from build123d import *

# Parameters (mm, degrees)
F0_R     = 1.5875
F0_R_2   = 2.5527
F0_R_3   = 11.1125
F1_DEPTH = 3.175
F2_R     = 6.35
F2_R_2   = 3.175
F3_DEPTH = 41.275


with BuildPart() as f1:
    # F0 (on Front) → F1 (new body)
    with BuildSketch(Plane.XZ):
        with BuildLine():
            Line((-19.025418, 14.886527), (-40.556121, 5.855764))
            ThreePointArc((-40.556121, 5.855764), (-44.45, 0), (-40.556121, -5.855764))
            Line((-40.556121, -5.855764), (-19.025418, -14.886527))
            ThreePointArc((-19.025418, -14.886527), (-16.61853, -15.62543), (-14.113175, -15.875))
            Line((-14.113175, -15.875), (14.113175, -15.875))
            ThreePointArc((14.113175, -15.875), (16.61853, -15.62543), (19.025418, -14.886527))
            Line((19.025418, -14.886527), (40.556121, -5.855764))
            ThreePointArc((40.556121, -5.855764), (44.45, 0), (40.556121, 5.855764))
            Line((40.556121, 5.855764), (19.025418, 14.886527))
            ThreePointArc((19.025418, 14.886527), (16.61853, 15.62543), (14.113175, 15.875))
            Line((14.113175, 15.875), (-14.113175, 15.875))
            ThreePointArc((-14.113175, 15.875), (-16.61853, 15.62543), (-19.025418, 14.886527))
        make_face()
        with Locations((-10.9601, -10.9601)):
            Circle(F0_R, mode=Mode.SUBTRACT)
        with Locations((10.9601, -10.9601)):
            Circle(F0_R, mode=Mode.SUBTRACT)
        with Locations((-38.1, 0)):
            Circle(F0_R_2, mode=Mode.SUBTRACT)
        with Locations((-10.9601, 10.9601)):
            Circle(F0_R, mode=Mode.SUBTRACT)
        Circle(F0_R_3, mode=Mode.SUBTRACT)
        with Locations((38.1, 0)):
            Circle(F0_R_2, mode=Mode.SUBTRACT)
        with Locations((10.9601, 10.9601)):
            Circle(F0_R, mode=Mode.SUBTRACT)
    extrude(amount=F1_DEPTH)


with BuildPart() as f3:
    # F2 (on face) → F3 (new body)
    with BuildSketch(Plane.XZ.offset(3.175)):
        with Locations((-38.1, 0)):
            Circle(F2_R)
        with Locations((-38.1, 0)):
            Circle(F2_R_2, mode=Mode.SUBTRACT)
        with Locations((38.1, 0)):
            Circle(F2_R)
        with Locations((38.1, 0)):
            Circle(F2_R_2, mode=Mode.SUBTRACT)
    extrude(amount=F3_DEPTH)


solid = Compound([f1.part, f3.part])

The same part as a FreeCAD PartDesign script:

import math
import FreeCAD as App
import Part
import Sketcher
from FreeCAD import Vector
Q = App.Units.Quantity

doc = App.newDocument("Part")
body = doc.addObject("PartDesign::Body", "Body")

# Sketch on XZ plane
sketch1 = doc.addObject("Sketcher::SketchObject", "Sketch")
body.addObject(sketch1)
sketch1.AttachmentSupport = (doc.XZ_Plane, [""])
sketch1.MapMode = "FlatFace"
sketch1.addGeometry(Part.LineSegment(Vector(-19, 14.9, 0), Vector(-40.6, 5.9, 0)), False)
sketch1.addGeometry(Part.ArcOfCircle(Part.Circle(Vector(-38.1, 0, 0), Vector(0, 0, 1), 6.4), math.radians(113), math.radians(247)), False)
sketch1.addGeometry(Part.LineSegment(Vector(-40.6, -5.9, 0), Vector(-19, -14.9, 0)), False)
sketch1.addGeometry(Part.ArcOfCircle(Part.Circle(Vector(-14.1, -3.2, 0), Vector(0, 0, 1), 12.7), math.radians(-113), math.radians(-90)), False)
sketch1.addGeometry(Part.LineSegment(Vector(-14.1, -15.9, 0), Vector(14.1, -15.9, 0)), False)
sketch1.addGeometry(Part.ArcOfCircle(Part.Circle(Vector(14.1, -3.2, 0), Vector(0, 0, 1), 12.7), math.radians(-90), math.radians(-67)), False)
sketch1.addGeometry(Part.LineSegment(Vector(19, -14.9, 0), Vector(40.6, -5.9, 0)), False)
sketch1.addGeometry(Part.ArcOfCircle(Part.Circle(Vector(38.1, 0, 0), Vector(0, 0, 1), 6.4), math.radians(-67), math.radians(67)), False)
sketch1.addGeometry(Part.LineSegment(Vector(40.6, 5.9, 0), Vector(19, 14.9, 0)), False)
sketch1.addGeometry(Part.ArcOfCircle(Part.Circle(Vector(14.1, 3.2, 0), Vector(0, 0, 1), 12.7), math.radians(67), math.radians(90)), False)
sketch1.addGeometry(Part.LineSegment(Vector(14.1, 15.9, 0), Vector(-14.1, 15.9, 0)), False)
sketch1.addGeometry(Part.ArcOfCircle(Part.Circle(Vector(-14.1, 3.2, 0), Vector(0, 0, 1), 12.7), math.radians(90), math.radians(113)), False)
sketch1.addGeometry(Part.Circle(Vector(-11, -11, 0), Vector(0, 0, 1), 1.6), False)
sketch1.addGeometry(Part.Circle(Vector(11, -11, 0), Vector(0, 0, 1), 1.6), False)
sketch1.addGeometry(Part.Circle(Vector(-38.1, 0, 0), Vector(0, 0, 1), 2.6), False)
sketch1.addGeometry(Part.Circle(Vector(-11, 11, 0), Vector(0, 0, 1), 1.6), False)
sketch1.addGeometry(Part.Circle(Vector(0, 0, 0), Vector(0, 0, 1), 11.1), False)
sketch1.addGeometry(Part.Circle(Vector(38.1, 0, 0), Vector(0, 0, 1), 2.6), False)
sketch1.addGeometry(Part.Circle(Vector(11, 11, 0), Vector(0, 0, 1), 1.6), False)
sketch1.addConstraint(Sketcher.Constraint("Tangent", 0, 2, 1, 1))
sketch1.addConstraint(Sketcher.Constraint("Tangent", 1, 2, 2, 1))
sketch1.addConstraint(Sketcher.Constraint("Tangent", 2, 2, 3, 1))
sketch1.addConstraint(Sketcher.Constraint("Tangent", 3, 2, 4, 1))
sketch1.addConstraint(Sketcher.Constraint("Tangent", 4, 2, 5, 1))
sketch1.addConstraint(Sketcher.Constraint("Tangent", 5, 2, 6, 1))
sketch1.addConstraint(Sketcher.Constraint("Tangent", 6, 2, 7, 1))
sketch1.addConstraint(Sketcher.Constraint("Tangent", 7, 2, 8, 1))
sketch1.addConstraint(Sketcher.Constraint("Tangent", 8, 2, 9, 1))
sketch1.addConstraint(Sketcher.Constraint("Tangent", 9, 2, 10, 1))
sketch1.addConstraint(Sketcher.Constraint("Tangent", 10, 2, 11, 1))
sketch1.addConstraint(Sketcher.Constraint("Tangent", 11, 2, 0, 1))
sketch1.addConstraint(Sketcher.Constraint("Horizontal", 4))
sketch1.addConstraint(Sketcher.Constraint("Horizontal", 10))
sketch1.addConstraint(Sketcher.Constraint("Coincident", 16, 3, -1, 1))
sketch1.addConstraint(Sketcher.Constraint("Coincident", 14, 3, 1, 3))
sketch1.addConstraint(Sketcher.Constraint("Coincident", 17, 3, 7, 3))
sketch1.addConstraint(Sketcher.Constraint("Equal", 3, 5))
sketch1.addConstraint(Sketcher.Constraint("Equal", 1, 7))
sketch1.addConstraint(Sketcher.Constraint("Equal", 5, 9))
sketch1.addConstraint(Sketcher.Constraint("Equal", 9, 11))
sketch1.addConstraint(Sketcher.Constraint("Equal", 12, 13))
sketch1.addConstraint(Sketcher.Constraint("Equal", 13, 15))
sketch1.addConstraint(Sketcher.Constraint("Equal", 14, 17))
sketch1.addConstraint(Sketcher.Constraint("Equal", 15, 18))
sketch1.addConstraint(Sketcher.Constraint("Symmetric", 1, 3, 7, 3, -1, 1))
sketch1.addConstraint(Sketcher.Constraint("Symmetric", 3, 3, 9, 3, -1, 1))
sketch1.addConstraint(Sketcher.Constraint("Symmetric", 13, 3, 15, 3, -1, 1))
sketch1.addConstraint(Sketcher.Constraint("Symmetric", 12, 3, 18, 3, -1, 1))
sketch1.addConstraint(Sketcher.Constraint("Symmetric", 12, 3, 13, 3, -2))
sketch1.addConstraint(Sketcher.Constraint("Symmetric", 2, 2, 5, 2, -2))
sketch1.addConstraint(Sketcher.Constraint("Parallel", 0, 6))
sketch1.addConstraint(Sketcher.Constraint("Radius", 1, Q("0.25 in")))
sketch1.addConstraint(Sketcher.Constraint("Diameter", 12, Q("0.125 in")))
sketch1.addConstraint(Sketcher.Constraint("Diameter", 14, Q("0.201 in")))
sketch1.addConstraint(Sketcher.Constraint("Diameter", 16, Q("0.875 in")))
sketch1.addConstraint(Sketcher.Constraint("DistanceX", 1, 3, 7, 3, Q("3 in")))
sketch1.addConstraint(Sketcher.Constraint("DistanceY", 3, 2, -1, 1, Q("0.625 in")))
sketch1.addConstraint(Sketcher.Constraint("DistanceX", 12, 3, 13, 3, Q("0.863 in")))
sketch1.addConstraint(Sketcher.Constraint("DistanceY", 12, 3, 15, 3, Q("0.863 in")))
sketch1.addConstraint(Sketcher.Constraint("Radius", 3, 12.699975))
sketch1.addConstraint(Sketcher.Constraint("DistanceX", 4, 1, 4, 2, 28.22635))
pad1 = doc.addObject("PartDesign::Pad", "Pad")
body.addObject(pad1)
pad1.Profile = sketch1
pad1.Length = Q("0.125 in")
body2 = doc.addObject("PartDesign::Body", "Body001")
body2.AllowCompound = True

# Sketch on XZ plane
sketch2 = doc.addObject("Sketcher::SketchObject", "Sketch001")
body2.addObject(sketch2)
sketch2.AttachmentSupport = (doc.getObject("XZ_Plane001"), [""])
sketch2.MapMode = "FlatFace"
sketch2.AttachmentOffset = App.Placement(Vector(0, 0, 0.125 * 25.4), App.Rotation())
sketch2.addGeometry(Part.Circle(Vector(-38.1, 0, 0), Vector(0, 0, 1), 6.3), False)
sketch2.addGeometry(Part.Circle(Vector(-38.1, 0, 0), Vector(0, 0, 1), 3.2), False)
sketch2.addGeometry(Part.Circle(Vector(38.1, 0, 0), Vector(0, 0, 1), 6.3), False)
sketch2.addGeometry(Part.Circle(Vector(38.1, 0, 0), Vector(0, 0, 1), 3.2), False)
sketch2.addConstraint(Sketcher.Constraint("Coincident", 1, 3, 0, 3))
sketch2.addConstraint(Sketcher.Constraint("Coincident", 3, 3, 2, 3))
sketch2.addConstraint(Sketcher.Constraint("Equal", 0, 2))
sketch2.addConstraint(Sketcher.Constraint("Equal", 1, 3))
sketch2.addConstraint(Sketcher.Constraint("Symmetric", 0, 3, 2, 3, -1, 1))
sketch2.addConstraint(Sketcher.Constraint("PointOnObject", 0, 3, -1))
sketch2.addConstraint(Sketcher.Constraint("Diameter", 0, Q("0.5 in")))
sketch2.addConstraint(Sketcher.Constraint("Diameter", 1, Q("0.25 in")))
sketch2.addConstraint(Sketcher.Constraint("DistanceX", 0, 3, 2, 3, Q("3 in")))
pad2 = doc.addObject("PartDesign::Pad", "Pad001")
body2.addObject(pad2)
pad2.Profile = sketch2
pad2.Length = Q("1.625 in")

doc.recompute()
